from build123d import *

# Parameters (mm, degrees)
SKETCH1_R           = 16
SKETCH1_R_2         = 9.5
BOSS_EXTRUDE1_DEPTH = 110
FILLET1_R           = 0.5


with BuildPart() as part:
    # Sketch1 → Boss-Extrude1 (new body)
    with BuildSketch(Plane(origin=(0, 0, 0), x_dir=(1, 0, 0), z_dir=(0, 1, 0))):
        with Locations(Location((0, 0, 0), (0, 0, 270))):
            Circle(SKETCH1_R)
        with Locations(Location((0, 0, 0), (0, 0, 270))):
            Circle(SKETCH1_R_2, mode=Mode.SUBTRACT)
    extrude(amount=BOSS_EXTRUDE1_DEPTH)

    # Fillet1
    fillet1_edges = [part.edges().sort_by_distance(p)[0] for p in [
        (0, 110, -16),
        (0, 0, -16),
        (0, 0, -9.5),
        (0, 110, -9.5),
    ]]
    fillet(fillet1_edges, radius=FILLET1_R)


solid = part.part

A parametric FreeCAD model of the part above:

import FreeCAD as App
import Part
import Sketcher

V = App.Vector


def edges_at(feature, points):
    """Names of the edges that pass closest to the given points."""
    edges = feature.Shape.Edges
    near = lambda p: min(range(len(edges)), key=lambda i: edges[i].distToShape(Part.Vertex(*p))[0])
    return sorted({f"Edge{near(p) + 1}" for p in points})

doc = App.newDocument("Part")
body = doc.addObject("PartDesign::Body", "Body")

# Sketch on XZ plane
sketch1 = body.newObject("Sketcher::SketchObject", "Sketch")
sketch1.AttachmentSupport = (doc.getObject("XZ_Plane"), [""])
sketch1.MapMode = "FlatFace"
sketch1.addGeometry(Part.Circle(V(0, 0, 0), V(0, 0, 1), 16), False)
sketch1.addGeometry(Part.Circle(V(0, 0, 0), V(0, 0, 1), 10), False)
sketch1.addConstraint(Sketcher.Constraint("Coincident", 0, 3, -1, 1))
sketch1.addConstraint(Sketcher.Constraint("Coincident", 1, 3, -1, 1))
sketch1.addConstraint(Sketcher.Constraint("Diameter", 0, 32.0))
sketch1.addConstraint(Sketcher.Constraint("Diameter", 1, 19.0))
pad1 = body.newObject("PartDesign::Pad", "Pad")
pad1.Profile = sketch1
pad1.Length = 110
pad1.Reversed = True
doc.recompute()

fillet = body.newObject("PartDesign::Fillet", "Fillet")
fillet.Base = (pad1, edges_at(pad1, [
    (0, 110, -16),
    (0, 0, -16),
    (0, 0, -9.5),
    (0, 110, -9.5),
]))
fillet.Radius = 0.5

doc.recompute()
